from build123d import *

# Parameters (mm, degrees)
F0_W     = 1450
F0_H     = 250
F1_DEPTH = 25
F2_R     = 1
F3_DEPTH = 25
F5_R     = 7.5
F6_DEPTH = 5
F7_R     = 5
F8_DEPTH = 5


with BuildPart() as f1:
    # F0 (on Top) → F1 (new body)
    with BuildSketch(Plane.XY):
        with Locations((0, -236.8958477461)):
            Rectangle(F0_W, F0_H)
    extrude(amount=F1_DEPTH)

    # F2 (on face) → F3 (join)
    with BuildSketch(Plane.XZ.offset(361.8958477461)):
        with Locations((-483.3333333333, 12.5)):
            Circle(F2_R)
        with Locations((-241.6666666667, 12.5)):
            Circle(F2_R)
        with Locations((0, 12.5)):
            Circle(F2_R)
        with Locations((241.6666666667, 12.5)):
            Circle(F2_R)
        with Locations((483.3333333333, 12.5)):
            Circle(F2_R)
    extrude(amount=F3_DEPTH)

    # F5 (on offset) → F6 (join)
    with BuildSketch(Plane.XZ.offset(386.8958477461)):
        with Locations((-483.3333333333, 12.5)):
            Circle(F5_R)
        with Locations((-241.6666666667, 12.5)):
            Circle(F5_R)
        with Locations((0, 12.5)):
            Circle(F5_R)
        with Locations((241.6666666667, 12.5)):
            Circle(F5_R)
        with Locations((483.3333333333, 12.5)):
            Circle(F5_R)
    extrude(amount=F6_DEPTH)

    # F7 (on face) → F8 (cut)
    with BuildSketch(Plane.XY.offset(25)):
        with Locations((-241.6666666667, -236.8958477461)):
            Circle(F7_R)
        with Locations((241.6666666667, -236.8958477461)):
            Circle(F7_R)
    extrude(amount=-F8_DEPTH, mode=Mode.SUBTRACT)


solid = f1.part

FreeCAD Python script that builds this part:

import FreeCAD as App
import Part
import Sketcher
from FreeCAD import Vector

doc = App.newDocument("Part")
body = doc.addObject("PartDesign::Body", "Body")

# Sketch on XY plane
sketch1 = body.newObject("Sketcher::SketchObject", "Sketch")
sketch1.AttachmentSupport = (doc.getObject("XY_Plane"), [""])
sketch1.MapMode = "FlatFace"
sketch1.addGeometry([
    Part.LineSegment(Vector(-725, -111.895848, 0), Vector(-725, -361.895848, 0)),
    Part.LineSegment(Vector(-725, -361.895848, 0), Vector(725, -361.895848, 0)),
    Part.LineSegment(Vector(725, -361.895848, 0), Vector(725, -111.895848, 0)),
    Part.LineSegment(Vector(725, -111.895848, 0), Vector(-725, -111.895848, 0)),
], False)
sketch1.addConstraint([
    Sketcher.Constraint("Coincident", 0, 2, 1, 1),
    Sketcher.Constraint("Coincident", 1, 2, 2, 1),
    Sketcher.Constraint("Coincident", 2, 2, 3, 1),
    Sketcher.Constraint("Coincident", 3, 2, 0, 1),
    Sketcher.Constraint("Vertical", 0),
    Sketcher.Constraint("Horizontal", 1),
    Sketcher.Constraint("Vertical", 2),
    Sketcher.Constraint("Horizontal", 3),
    Sketcher.Constraint("DistanceX", 1, 1, 1, 2, 1450.0),
    Sketcher.Constraint("DistanceY", 0, 2, 0, 1, 250.0),
    Sketcher.Constraint("DistanceX", 0, 2, -1, 1, 725.0),
    Sketcher.Constraint("DistanceY", 0, 2, -1, 1, 361.895848),
])
pad1 = body.newObject("PartDesign::Pad", "Pad")
pad1.Profile = sketch1
pad1.Length = 25

# Sketch on XZ plane
sketch2 = body.newObject("Sketcher::SketchObject", "Sketch001")
sketch2.AttachmentSupport = (doc.getObject("XZ_Plane"), [""])
sketch2.MapMode = "FlatFace"
sketch2.AttachmentOffset = App.Placement(Vector(0, 0, 361.895848), App.Rotation())
sketch2.addGeometry([
    Part.Circle(Vector(-483.333333, 12.5, 0), Vector(0, 0, 1), 1),  # 0
    Part.Circle(Vector(-241.666667, 12.5, 0), Vector(0, 0, 1), 1),  # 1
    Part.Circle(Vector(0, 12.5, 0), Vector(0, 0, 1), 1),  # 2
    Part.Circle(Vector(241.666667, 12.5, 0), Vector(0, 0, 1), 1),  # 3
    Part.Circle(Vector(483.333333, 12.5, 0), Vector(0, 0, 1), 1),  # 4
], False)
sketch2.addConstraint([
    Sketcher.Constraint("Equal", 0, 1),
    Sketcher.Constraint("Equal", 1, 2),
    Sketcher.Constraint("Equal", 2, 3),
    Sketcher.Constraint("Equal", 3, 4),
    Sketcher.Constraint("Symmetric", 1, 3, 3, 3, -2),
    Sketcher.Constraint("Symmetric", 0, 3, 4, 3, -2),
    Sketcher.Constraint("PointOnObject", 2, 3, -2),
    Sketcher.Constraint("Horizontal", 0, 3, 1, 3),
    Sketcher.Constraint("Horizontal", 1, 3, 2, 3),
    Sketcher.Constraint("Diameter", 0, 2.0),
    Sketcher.Constraint("DistanceX", 0, 3, 3, 3, 725.0),
    Sketcher.Constraint("DistanceY", -1, 1, 0, 3, 12.5),
    Sketcher.Constraint("DistanceX", 0, 3, -1, 1, 483.333333),
])
pad2 = body.newObject("PartDesign::Pad", "Pad001")
pad2.Profile = sketch2
pad2.Length = 25

# Sketch on XZ plane
sketch3 = body.newObject("Sketcher::SketchObject", "Sketch002")
sketch3.AttachmentSupport = (doc.getObject("XZ_Plane"), [""])
sketch3.MapMode = "FlatFace"
sketch3.AttachmentOffset = App.Placement(Vector(0, 0, 386.895848), App.Rotation())
sketch3.addGeometry([
    Part.Circle(Vector(-483.333333, 12.5, 0), Vector(0, 0, 1), 7.5),  # 0
    Part.Circle(Vector(-241.666667, 12.5, 0), Vector(0, 0, 1), 7.5),  # 1
    Part.Circle(Vector(0, 12.5, 0), Vector(0, 0, 1), 7.5),  # 2
    Part.Circle(Vector(241.666667, 12.5, 0), Vector(0, 0, 1), 7.5),  # 3
    Part.Circle(Vector(483.333333, 12.5, 0), Vector(0, 0, 1), 7.5),  # 4
], False)
sketch3.addConstraint([
    Sketcher.Constraint("Equal", 0, 1),
    Sketcher.Constraint("Equal", 1, 2),
    Sketcher.Constraint("Equal", 2, 3),
    Sketcher.Constraint("Equal", 3, 4),
    Sketcher.Constraint("Symmetric", 1, 3, 3, 3, -2),
    Sketcher.Constraint("Symmetric", 0, 3, 4, 3, -2),
    Sketcher.Constraint("PointOnObject", 2, 3, -2),
    Sketcher.Constraint("Horizontal", 0, 3, 1, 3),
    Sketcher.Constraint("Horizontal", 1, 3, 2, 3),
    Sketcher.Constraint("Diameter", 0, 15.0),
    Sketcher.Constraint("DistanceX", 0, 3, 3, 3, 725.0),
    Sketcher.Constraint("DistanceY", -1, 1, 0, 3, 12.5),
    Sketcher.Constraint("DistanceX", 0, 3, -1, 1, 483.333333),
])
pad3 = body.newObject("PartDesign::Pad", "Pad002")
pad3.Profile = sketch3
pad3.Length = 5

# Sketch on XY plane
sketch4 = body.newObject("Sketcher::SketchObject", "Sketch003")
sketch4.AttachmentSupport = (doc.getObject("XY_Plane"), [""])
sketch4.MapMode = "FlatFace"
sketch4.AttachmentOffset = App.Placement(Vector(0, 0, 25), App.Rotation())
sketch4.addGeometry([
    Part.Circle(Vector(-241.666667, -236.895848, 0), Vector(0, 0, 1), 5),
    Part.Circle(Vector(241.666667, -236.895848, 0), Vector(0, 0, 1), 5),
], False)
sketch4.addConstraint([
    Sketcher.Constraint("Equal", 0, 1),
    Sketcher.Constraint("Symmetric", 0, 3, 1, 3, -2),
    Sketcher.Constraint("Diameter", 0, 10.0),
    Sketcher.Constraint("DistanceX", 0, 3, -1, 1, 241.666667),
    Sketcher.Constraint("DistanceY", 0, 3, -1, 1, 236.895848),
])
pocket1 = body.newObject("PartDesign::Pocket", "Pocket")
pocket1.Profile = sketch4
pocket1.Length = 5

doc.recompute()
